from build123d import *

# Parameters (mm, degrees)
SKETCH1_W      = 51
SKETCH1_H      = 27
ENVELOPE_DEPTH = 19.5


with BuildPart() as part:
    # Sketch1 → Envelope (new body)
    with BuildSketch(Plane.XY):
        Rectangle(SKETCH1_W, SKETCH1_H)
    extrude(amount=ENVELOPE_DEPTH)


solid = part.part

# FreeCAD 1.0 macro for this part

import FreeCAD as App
import Part
import Sketcher
from FreeCAD import Vector
Q = App.Units.Quantity


def add_polygon(sketch, points):
    """Adds a closed chain of lines whose ends are joined by coincident constraints."""
    first, n = sketch.GeometryCount, len(points)
    for a, b in zip(points, points[1:] + points[:1]):
        sketch.addGeometry(Part.LineSegment(App.Vector(*a, 0), App.Vector(*b, 0)), False)
    for i in range(n):
        sketch.addConstraint(Sketcher.Constraint("Coincident", first + i, 2, first + (i + 1) % n, 1))

doc = App.newDocument("Part")
body = doc.addObject("PartDesign::Body", "Body")

# Sketch on XY plane
sketch1 = body.newObject("Sketcher::SketchObject", "Sketch")
sketch1.AttachmentSupport = (doc.getObject("XY_Plane"), [""])
sketch1.MapMode = "FlatFace"
add_polygon(sketch1, [(-26, 14), (-26, -14), (26, -14), (26, 14)])  # lines 0-3
sketch1.addConstraint([
    Sketcher.Constraint("Vertical", 0),
    Sketcher.Constraint("Horizontal", 1),
    Sketcher.Constraint("Vertical", 2),
    Sketcher.Constraint("Horizontal", 3),
    Sketcher.Constraint("Symmetric", 0, 2, 2, 2, -1, 1),
    Sketcher.Constraint("DistanceX", 1, 1, 1, 2, Q("51 mm")),
    Sketcher.Constraint("DistanceY", 0, 2, 0, 1, Q("27 mm")),
])
pad1 = body.newObject("PartDesign::Pad", "Pad")
pad1.Profile = sketch1
pad1.Length = 19.5

doc.recompute()
